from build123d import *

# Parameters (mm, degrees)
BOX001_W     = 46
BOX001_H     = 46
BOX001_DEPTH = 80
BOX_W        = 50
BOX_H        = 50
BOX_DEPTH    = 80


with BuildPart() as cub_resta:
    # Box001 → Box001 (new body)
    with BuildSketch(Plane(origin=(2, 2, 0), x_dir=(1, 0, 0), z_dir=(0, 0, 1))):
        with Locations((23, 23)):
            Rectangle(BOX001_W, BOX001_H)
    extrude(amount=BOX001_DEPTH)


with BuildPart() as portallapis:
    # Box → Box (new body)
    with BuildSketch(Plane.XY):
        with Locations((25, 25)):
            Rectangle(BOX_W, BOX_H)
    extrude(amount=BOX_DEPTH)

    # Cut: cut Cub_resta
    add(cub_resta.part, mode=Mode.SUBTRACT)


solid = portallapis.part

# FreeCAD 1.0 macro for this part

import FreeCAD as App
import Part
import Sketcher
Q = App.Units.Quantity


def add_polygon(sketch, points):
    """Adds a closed chain of lines whose ends are joined by coincident constraints."""
    first, n = sketch.GeometryCount, len(points)
    for a, b in zip(points, points[1:] + points[:1]):
        sketch.addGeometry(Part.LineSegment(App.Vector(*a, 0), App.Vector(*b, 0)), False)
    for i in range(n):
        sketch.addConstraint(Sketcher.Constraint("Coincident", first + i, 2, first + (i + 1) % n, 1))

doc = App.newDocument("Part")
params = doc.addObject("Spreadsheet::Sheet", "Params")
for row, (alias, value) in enumerate([
    ("sketch1_width", "46 mm"),
    ("pad1_length", "80 mm"),
    ("sketch2_width", "50 mm"),
    ("pad2_length", "80 mm"),
], start=1):
    params.set(f"A{row}", alias)
    params.set(f"B{row}", "=" + value)
    params.setAlias(f"B{row}", alias)

body = doc.addObject("PartDesign::Body", "Body")

# Sketch on XY plane
sketch1 = body.newObject("Sketcher::SketchObject", "Sketch")
sketch1.AttachmentSupport = (doc.getObject("XY_Plane"), [""])
sketch1.MapMode = "FlatFace"
add_polygon(sketch1, [(2, 48), (2, 2), (48, 2), (48, 48)])  # lines 0-3
sketch1.addConstraint([
    Sketcher.Constraint("Vertical", 0),
    Sketcher.Constraint("Horizontal", 1),
    Sketcher.Constraint("Vertical", 2),
    Sketcher.Constraint("Horizontal", 3),
    Sketcher.Constraint("Equal", 3, 0),
    Sketcher.Constraint("DistanceX", 1, 1, 1, 2, Q("46 mm")),
    Sketcher.Constraint("DistanceX", -1, 1, 0, 2, Q("2 mm")),
    Sketcher.Constraint("DistanceY", -1, 1, 0, 2, Q("2 mm")),
])
sketch1.setExpression("Constraints[9]", "Params.sketch1_width")
pad1 = body.newObject("PartDesign::Pad", "Pad")
pad1.Profile = sketch1
pad1.setExpression("Length", "Params.pad1_length")
body2 = doc.addObject("PartDesign::Body", "Body001")

# Sketch on XY plane
sketch2 = body2.newObject("Sketcher::SketchObject", "Sketch001")
sketch2.AttachmentSupport = (doc.getObject("XY_Plane001"), [""])
sketch2.MapMode = "FlatFace"
add_polygon(sketch2, [(0, 50), (0, 0), (50, 0), (50, 50)])  # lines 0-3
sketch2.addConstraint([
    Sketcher.Constraint("Vertical", 0),
    Sketcher.Constraint("Horizontal", 1),
    Sketcher.Constraint("Vertical", 2),
    Sketcher.Constraint("Horizontal", 3),
    Sketcher.Constraint("Coincident", 0, 2, -1, 1),
    Sketcher.Constraint("Equal", 3, 0),
    Sketcher.Constraint("DistanceX", 1, 1, 1, 2, Q("50 mm")),
])
sketch2.setExpression("Constraints[10]", "Params.sketch2_width")
pad2 = body2.newObject("PartDesign::Pad", "Pad001")
pad2.Profile = sketch2
pad2.setExpression("Length", "Params.pad2_length")
doc.recompute()

boolean = body2.newObject("PartDesign::Boolean", "Boolean")
boolean.Type = "Cut"
boolean.addObjects([body])

doc.recompute()
